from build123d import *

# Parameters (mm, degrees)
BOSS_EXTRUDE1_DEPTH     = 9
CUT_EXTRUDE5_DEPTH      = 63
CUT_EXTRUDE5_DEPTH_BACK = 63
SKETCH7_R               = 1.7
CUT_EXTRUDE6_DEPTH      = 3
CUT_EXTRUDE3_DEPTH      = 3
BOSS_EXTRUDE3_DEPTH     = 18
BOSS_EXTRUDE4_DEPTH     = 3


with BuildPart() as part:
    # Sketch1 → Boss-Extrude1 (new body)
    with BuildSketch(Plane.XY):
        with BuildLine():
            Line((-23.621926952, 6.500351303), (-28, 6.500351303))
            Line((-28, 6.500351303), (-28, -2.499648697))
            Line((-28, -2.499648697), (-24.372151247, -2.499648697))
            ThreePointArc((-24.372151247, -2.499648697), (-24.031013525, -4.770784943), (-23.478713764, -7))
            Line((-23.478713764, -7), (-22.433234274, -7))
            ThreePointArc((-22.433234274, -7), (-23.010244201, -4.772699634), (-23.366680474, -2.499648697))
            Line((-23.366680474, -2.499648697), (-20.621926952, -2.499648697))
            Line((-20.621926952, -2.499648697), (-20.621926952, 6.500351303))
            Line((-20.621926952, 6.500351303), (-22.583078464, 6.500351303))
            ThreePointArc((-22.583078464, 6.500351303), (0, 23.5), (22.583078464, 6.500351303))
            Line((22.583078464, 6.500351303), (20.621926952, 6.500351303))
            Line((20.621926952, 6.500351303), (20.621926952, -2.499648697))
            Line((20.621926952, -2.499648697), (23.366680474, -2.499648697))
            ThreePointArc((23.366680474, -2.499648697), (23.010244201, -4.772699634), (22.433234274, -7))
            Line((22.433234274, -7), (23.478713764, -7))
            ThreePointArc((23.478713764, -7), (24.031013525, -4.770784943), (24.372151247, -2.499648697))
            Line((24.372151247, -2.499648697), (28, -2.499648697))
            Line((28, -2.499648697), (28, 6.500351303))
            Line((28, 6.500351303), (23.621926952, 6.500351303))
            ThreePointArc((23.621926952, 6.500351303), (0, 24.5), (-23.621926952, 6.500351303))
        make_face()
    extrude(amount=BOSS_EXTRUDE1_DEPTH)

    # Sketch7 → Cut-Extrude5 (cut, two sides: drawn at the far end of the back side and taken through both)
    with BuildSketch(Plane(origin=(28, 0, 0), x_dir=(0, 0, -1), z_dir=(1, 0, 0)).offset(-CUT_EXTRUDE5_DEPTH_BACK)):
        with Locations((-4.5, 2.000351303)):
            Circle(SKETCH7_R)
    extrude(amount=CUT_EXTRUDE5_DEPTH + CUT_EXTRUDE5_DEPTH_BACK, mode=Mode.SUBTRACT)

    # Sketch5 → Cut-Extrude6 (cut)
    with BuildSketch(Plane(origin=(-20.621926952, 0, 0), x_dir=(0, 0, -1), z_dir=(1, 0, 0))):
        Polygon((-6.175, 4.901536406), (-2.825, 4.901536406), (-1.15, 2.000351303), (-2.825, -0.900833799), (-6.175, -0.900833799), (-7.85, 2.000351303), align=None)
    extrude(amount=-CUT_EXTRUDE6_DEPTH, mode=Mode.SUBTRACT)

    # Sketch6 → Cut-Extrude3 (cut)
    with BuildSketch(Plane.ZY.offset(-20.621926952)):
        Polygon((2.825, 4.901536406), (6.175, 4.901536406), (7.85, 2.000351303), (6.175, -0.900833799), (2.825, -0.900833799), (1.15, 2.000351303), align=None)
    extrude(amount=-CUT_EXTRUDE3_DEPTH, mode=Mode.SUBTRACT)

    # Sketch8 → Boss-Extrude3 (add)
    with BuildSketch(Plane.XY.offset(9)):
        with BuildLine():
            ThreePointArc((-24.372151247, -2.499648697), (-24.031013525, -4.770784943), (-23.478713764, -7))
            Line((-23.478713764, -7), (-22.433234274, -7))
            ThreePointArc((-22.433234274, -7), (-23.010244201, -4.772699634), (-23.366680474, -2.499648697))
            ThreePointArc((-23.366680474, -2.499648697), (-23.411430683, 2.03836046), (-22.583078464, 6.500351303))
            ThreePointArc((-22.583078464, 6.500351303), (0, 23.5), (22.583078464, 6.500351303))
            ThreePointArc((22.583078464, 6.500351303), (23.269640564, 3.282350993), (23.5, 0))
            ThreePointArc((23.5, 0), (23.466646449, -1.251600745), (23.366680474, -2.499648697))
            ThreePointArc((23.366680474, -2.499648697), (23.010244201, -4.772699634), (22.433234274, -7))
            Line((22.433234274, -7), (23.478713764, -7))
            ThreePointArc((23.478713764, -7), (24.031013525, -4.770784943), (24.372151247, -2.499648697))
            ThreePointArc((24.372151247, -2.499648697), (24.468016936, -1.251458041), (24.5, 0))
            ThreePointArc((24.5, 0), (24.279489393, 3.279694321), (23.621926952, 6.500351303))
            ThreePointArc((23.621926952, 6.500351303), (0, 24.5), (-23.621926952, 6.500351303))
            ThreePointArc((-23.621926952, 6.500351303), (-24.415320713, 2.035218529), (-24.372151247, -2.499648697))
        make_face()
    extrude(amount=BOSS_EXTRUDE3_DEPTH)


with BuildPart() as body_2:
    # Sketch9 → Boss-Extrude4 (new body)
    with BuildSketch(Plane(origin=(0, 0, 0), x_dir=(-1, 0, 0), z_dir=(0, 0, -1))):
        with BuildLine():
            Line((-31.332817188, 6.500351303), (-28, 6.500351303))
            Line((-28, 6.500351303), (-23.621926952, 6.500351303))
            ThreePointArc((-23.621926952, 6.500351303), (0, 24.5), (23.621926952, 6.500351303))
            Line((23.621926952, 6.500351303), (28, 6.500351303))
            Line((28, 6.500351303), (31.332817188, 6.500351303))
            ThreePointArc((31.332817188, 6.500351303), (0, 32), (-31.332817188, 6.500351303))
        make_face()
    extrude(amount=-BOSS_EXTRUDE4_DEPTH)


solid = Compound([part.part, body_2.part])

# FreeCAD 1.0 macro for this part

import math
import FreeCAD as App
import Part
import Sketcher
Q = App.Units.Quantity

doc = App.newDocument("Part")
params = doc.addObject("Spreadsheet::Sheet", "Params")
for row, (alias, value) in enumerate([
    ("sketch1_radius", "24.5 mm"),
    ("sketch1_radius2", "23.5 mm"),
    ("sketch1_height", "9 mm"),
    ("pad1_length", "9 mm"),
    ("sketch2_diameter", "3.4 mm"),
    ("sketch3_height", "3.35 mm"),
    ("pocket2_length", "3 mm"),
    ("sketch4_height", "3.35 mm"),
    ("pocket3_length", "3 mm"),
    ("sketch5_radius", "24.5 mm"),
    ("sketch5_radius2", "23.5 mm"),
    ("pad2_length", "18 mm"),
    ("sketch6_radius", "32 mm"),
    ("sketch6_radius2", "24.5 mm"),
    ("pad3_length", "3 mm"),
], start=1):
    params.set(f"A{row}", alias)
    params.set(f"B{row}", "=" + value)
    params.setAlias(f"B{row}", alias)

body = doc.addObject("PartDesign::Body", "Body")

# Sketch on XY plane
sketch1 = body.newObject("Sketcher::SketchObject", "Sketch")
sketch1.AttachmentSupport = (doc.getObject("XY_Plane"), [""])
sketch1.MapMode = "FlatFace"
sketch1.addGeometry([
    Part.LineSegment(App.Vector(-23.621927, 6.500351, 0), App.Vector(-28, 6.500351, 0)),  # 0
    Part.LineSegment(App.Vector(-28, 6.500351, 0), App.Vector(-28, -2.499649, 0)),  # 1
    Part.LineSegment(App.Vector(-28, -2.499649, 0), App.Vector(-24.372151, -2.499649, 0)),  # 2
    Part.ArcOfCircle(Part.Circle(App.Vector(0, 0, 0), App.Vector(0, 0, 1), 24.5), math.radians(-174.144124), math.radians(-163.39845)),  # 3
    Part.LineSegment(App.Vector(-23.478714, -7, 0), App.Vector(-22.433234, -7, 0)),  # 4
    Part.ArcOfCircle(Part.Circle(App.Vector(0, 0, 0), App.Vector(0, 0, 1), 23.5), math.radians(-173.89401), math.radians(-162.670144)),  # 5
    Part.LineSegment(App.Vector(-23.36668, -2.499649, 0), App.Vector(-20.621927, -2.499649, 0)),  # 6
    Part.LineSegment(App.Vector(-20.621927, -2.499649, 0), App.Vector(-20.621927, 6.500351, 0)),  # 7
    Part.LineSegment(App.Vector(-20.621927, 6.500351, 0), App.Vector(-22.583078, 6.500351, 0)),  # 8
    Part.ArcOfCircle(Part.Circle(App.Vector(0, 0, 0), App.Vector(0, 0, 1), 23.5), math.radians(16.058024), math.radians(163.941976)),  # 9
    Part.LineSegment(App.Vector(22.583078, 6.500351, 0), App.Vector(20.621927, 6.500351, 0)),  # 10
    Part.LineSegment(App.Vector(20.621927, 6.500351, 0), App.Vector(20.621927, -2.499649, 0)),  # 11
    Part.LineSegment(App.Vector(20.621927, -2.499649, 0), App.Vector(23.36668, -2.499649, 0)),  # 12
    Part.ArcOfCircle(Part.Circle(App.Vector(0, 0, 0), App.Vector(0, 0, 1), 23.5), math.radians(-17.329856), math.radians(-6.10599)),  # 13
    Part.LineSegment(App.Vector(22.433234, -7, 0), App.Vector(23.478714, -7, 0)),  # 14
    Part.ArcOfCircle(Part.Circle(App.Vector(0, 0, 0), App.Vector(0, 0, 1), 24.5), math.radians(-16.60155), math.radians(-5.855876)),  # 15
    Part.LineSegment(App.Vector(24.372151, -2.499649, 0), App.Vector(28, -2.499649, 0)),  # 16
    Part.LineSegment(App.Vector(28, -2.499649, 0), App.Vector(28, 6.500351, 0)),  # 17
    Part.LineSegment(App.Vector(28, 6.500351, 0), App.Vector(23.621927, 6.500351, 0)),  # 18
    Part.ArcOfCircle(Part.Circle(App.Vector(0, 0, 0), App.Vector(0, 0, 1), 24.5), math.radians(15.385996), math.radians(164.614004)),  # 19
], False)
sketch1.addConstraint([
    Sketcher.Constraint("Coincident", 0, 2, 1, 1),
    Sketcher.Constraint("Coincident", 1, 2, 2, 1),
    Sketcher.Constraint("Coincident", 2, 2, 3, 1),
    Sketcher.Constraint("Coincident", 3, 2, 4, 1),
    Sketcher.Constraint("Coincident", 4, 2, 5, 2),
    Sketcher.Constraint("Coincident", 5, 1, 6, 1),
    Sketcher.Constraint("Coincident", 6, 2, 7, 1),
    Sketcher.Constraint("Coincident", 7, 2, 8, 1),
    Sketcher.Constraint("Coincident", 8, 2, 9, 2),
    Sketcher.Constraint("Coincident", 9, 1, 10, 1),
    Sketcher.Constraint("Coincident", 10, 2, 11, 1),
    Sketcher.Constraint("Coincident", 11, 2, 12, 1),
    Sketcher.Constraint("Coincident", 12, 2, 13, 2),
    Sketcher.Constraint("Coincident", 13, 1, 14, 1),
    Sketcher.Constraint("Coincident", 14, 2, 15, 1),
    Sketcher.Constraint("Coincident", 15, 2, 16, 1),
    Sketcher.Constraint("Coincident", 16, 2, 17, 1),
    Sketcher.Constraint("Coincident", 17, 2, 18, 1),
    Sketcher.Constraint("Coincident", 18, 2, 19, 1),
    Sketcher.Constraint("Coincident", 19, 2, 0, 1),
    Sketcher.Constraint("Horizontal", 0),
    Sketcher.Constraint("Vertical", 1),
    Sketcher.Constraint("Horizontal", 2),
    Sketcher.Constraint("Horizontal", 4),
    Sketcher.Constraint("Horizontal", 6),
    Sketcher.Constraint("Vertical", 7),
    Sketcher.Constraint("Horizontal", 8),
    Sketcher.Constraint("Horizontal", 10),
    Sketcher.Constraint("Vertical", 11),
    Sketcher.Constraint("Horizontal", 12),
    Sketcher.Constraint("Horizontal", 14),
    Sketcher.Constraint("Horizontal", 16),
    Sketcher.Constraint("Vertical", 17),
    Sketcher.Constraint("Horizontal", 18),
    Sketcher.Constraint("Coincident", 3, 3, -1, 1),
    Sketcher.Constraint("Coincident", 5, 3, -1, 1),
    Sketcher.Constraint("Coincident", 9, 3, -1, 1),
    Sketcher.Constraint("Coincident", 13, 3, -1, 1),
    Sketcher.Constraint("Coincident", 15, 3, -1, 1),
    Sketcher.Constraint("Coincident", 19, 3, -1, 1),
    Sketcher.Constraint("Equal", 5, 9),
    Sketcher.Constraint("Equal", 9, 13),
    Sketcher.Constraint("Equal", 3, 15),
    Sketcher.Constraint("Equal", 15, 19),
    Sketcher.Constraint("Symmetric", 7, 2, 10, 2, -2),
    Sketcher.Constraint("Symmetric", 1, 2, 16, 2, -2),
    Sketcher.Constraint("Horizontal", 2, 2, 5, 1),
    Sketcher.Constraint("Horizontal", 0, 2, 7, 2),
    Sketcher.Constraint("Horizontal", 6, 2, 11, 2),
    Sketcher.Constraint("Horizontal", 4, 2, 13, 1),
    Sketcher.Constraint("Horizontal", 10, 2, 17, 2),
    Sketcher.Constraint("Radius", 3, 24.5),
    Sketcher.Constraint("Radius", 5, 23.5),
    Sketcher.Constraint("DistanceY", 1, 2, 1, 1, 9.0),
    Sketcher.Constraint("DistanceX", 0, 2, -1, 1, 28.0),
    Sketcher.Constraint("DistanceY", 3, 2, -1, 1, 7.0),
    Sketcher.Constraint("DistanceX", 10, 2, 18, 2, 3.0),
    Sketcher.Constraint("DistanceX", 2, 1, 2, 2, 3.627849),
])
sketch1.setExpression("Constraints[51]", "Params.sketch1_radius")
sketch1.setExpression("Constraints[52]", "Params.sketch1_radius2")
sketch1.setExpression("Constraints[53]", "Params.sketch1_height")
pad1 = body.newObject("PartDesign::Pad", "Pad")
pad1.Profile = sketch1
pad1.setExpression("Length", "Params.pad1_length")

# Sketch on YZ plane
sketch2 = body.newObject("Sketcher::SketchObject", "Sketch001")
sketch2.AttachmentSupport = (doc.getObject("YZ_Plane"), [""])
sketch2.MapMode = "FlatFace"
sketch2.AttachmentOffset = App.Placement(App.Vector(0, 0, 28), App.Rotation())
sketch2.addGeometry(Part.Circle(App.Vector(2.000351, 4.5, 0), App.Vector(0, 0, 1), 1.7), False)
sketch2.addConstraint([
    Sketcher.Constraint("Diameter", 0, 3.4),
    Sketcher.Constraint("DistanceY", -1, 1, 0, 3, 4.5),
    Sketcher.Constraint("DistanceX", -1, 1, 0, 3, 2.000351),
])
sketch2.setExpression("Constraints[0]", "Params.sketch2_diameter")
pocket1 = body.newObject("PartDesign::Pocket", "Pocket")
pocket1.Profile = sketch2
pocket1.Type = "ThroughAll"
pocket1.Midplane = True

# Sketch on YZ plane
sketch3 = body.newObject("Sketcher::SketchObject", "Sketch002")
sketch3.AttachmentSupport = (doc.getObject("YZ_Plane"), [""])
sketch3.MapMode = "FlatFace"
sketch3.AttachmentOffset = App.Placement(App.Vector(0, 0, -20.621927), App.Rotation())
sketch3.addGeometry([
    Part.LineSegment(App.Vector(4.901536, 2.825, 0), App.Vector(4.901536, 6.175, 0)),  # 0
    Part.LineSegment(App.Vector(4.901536, 6.175, 0), App.Vector(2.000351, 7.85, 0)),  # 1
    Part.LineSegment(App.Vector(2.000351, 7.85, 0), App.Vector(-0.900834, 6.175, 0)),  # 2
    Part.LineSegment(App.Vector(-0.900834, 6.175, 0), App.Vector(-0.900834, 2.825, 0)),  # 3
    Part.LineSegment(App.Vector(-0.900834, 2.825, 0), App.Vector(2.000351, 1.15, 0)),  # 4
    Part.LineSegment(App.Vector(2.000351, 1.15, 0), App.Vector(4.901536, 2.825, 0)),  # 5
], False)
sketch3.addConstraint([
    Sketcher.Constraint("Coincident", 0, 2, 1, 1),
    Sketcher.Constraint("Coincident", 1, 2, 2, 1),
    Sketcher.Constraint("Coincident", 2, 2, 3, 1),
    Sketcher.Constraint("Coincident", 3, 2, 4, 1),
    Sketcher.Constraint("Coincident", 4, 2, 5, 1),
    Sketcher.Constraint("Coincident", 5, 2, 0, 1),
    Sketcher.Constraint("Vertical", 0),
    Sketcher.Constraint("Vertical", 3),
    Sketcher.Constraint("Parallel", 1, 4),
    Sketcher.Constraint("Parallel", 2, 5),
    Sketcher.Constraint("Horizontal", 0, 2, 2, 2),
    Sketcher.Constraint("Horizontal", 3, 2, 5, 2),
    Sketcher.Constraint("Vertical", 1, 2, 4, 2),
    Sketcher.Constraint("Angle", 1, Q("150 deg")),
    Sketcher.Constraint("DistanceY", 0, 1, 0, 2, 3.35),
    Sketcher.Constraint("DistanceY", 4, 2, 1, 2, 6.7),
    Sketcher.Constraint("DistanceY", -1, 1, 1, 2, 7.85),
    Sketcher.Constraint("DistanceX", -1, 1, 1, 2, 2.000351),
])
sketch3.setExpression("Constraints[14]", "Params.sketch3_height")
pocket2 = body.newObject("PartDesign::Pocket", "Pocket001")
pocket2.Profile = sketch3
pocket2.setExpression("Length", "Params.pocket2_length")

# Sketch on YZ plane
sketch4 = body.newObject("Sketcher::SketchObject", "Sketch003")
sketch4.AttachmentSupport = (doc.getObject("YZ_Plane"), [""])
sketch4.MapMode = "FlatFace"
sketch4.AttachmentOffset = App.Placement(App.Vector(0, 0, 20.621927), App.Rotation())
sketch4.addGeometry([
    Part.LineSegment(App.Vector(4.901536, 6.175, 0), App.Vector(4.901536, 2.825, 0)),  # 0
    Part.LineSegment(App.Vector(4.901536, 2.825, 0), App.Vector(2.000351, 1.15, 0)),  # 1
    Part.LineSegment(App.Vector(2.000351, 1.15, 0), App.Vector(-0.900834, 2.825, 0)),  # 2
    Part.LineSegment(App.Vector(-0.900834, 2.825, 0), App.Vector(-0.900834, 6.175, 0)),  # 3
    Part.LineSegment(App.Vector(-0.900834, 6.175, 0), App.Vector(2.000351, 7.85, 0)),  # 4
    Part.LineSegment(App.Vector(2.000351, 7.85, 0), App.Vector(4.901536, 6.175, 0)),  # 5
], False)
sketch4.addConstraint([
    Sketcher.Constraint("Coincident", 0, 2, 1, 1),
    Sketcher.Constraint("Coincident", 1, 2, 2, 1),
    Sketcher.Constraint("Coincident", 2, 2, 3, 1),
    Sketcher.Constraint("Coincident", 3, 2, 4, 1),
    Sketcher.Constraint("Coincident", 4, 2, 5, 1),
    Sketcher.Constraint("Coincident", 5, 2, 0, 1),
    Sketcher.Constraint("Vertical", 0),
    Sketcher.Constraint("Vertical", 3),
    Sketcher.Constraint("Parallel", 1, 4),
    Sketcher.Constraint("Parallel", 2, 5),
    Sketcher.Constraint("Horizontal", 0, 2, 2, 2),
    Sketcher.Constraint("Horizontal", 3, 2, 5, 2),
    Sketcher.Constraint("Vertical", 1, 2, 4, 2),
    Sketcher.Constraint("Angle", 1, Q("-150 deg")),
    Sketcher.Constraint("DistanceY", 0, 2, 0, 1, 3.35),
    Sketcher.Constraint("DistanceY", 1, 2, 4, 2, 6.7),
    Sketcher.Constraint("DistanceY", -1, 1, 1, 2, 1.15),
    Sketcher.Constraint("DistanceX", -1, 1, 1, 2, 2.000351),
])
sketch4.setExpression("Constraints[14]", "Params.sketch4_height")
pocket3 = body.newObject("PartDesign::Pocket", "Pocket002")
pocket3.Profile = sketch4
pocket3.setExpression("Length", "Params.pocket3_length")
pocket3.Reversed = True

# Sketch on XY plane
sketch5 = body.newObject("Sketcher::SketchObject", "Sketch004")
sketch5.AttachmentSupport = (doc.getObject("XY_Plane"), [""])
sketch5.MapMode = "FlatFace"
sketch5.AttachmentOffset = App.Placement(App.Vector(0, 0, 9), App.Rotation())
sketch5.addGeometry([
    Part.ArcOfCircle(Part.Circle(App.Vector(0, 0, 0), App.Vector(0, 0, 1), 24.5), math.radians(-174.144124), math.radians(-163.39845)),  # 0
    Part.LineSegment(App.Vector(-23.478714, -7, 0), App.Vector(-22.433234, -7, 0)),  # 1
    Part.ArcOfCircle(Part.Circle(App.Vector(0, 0, 0), App.Vector(0, 0, 1), 23.5), math.radians(-173.89401), math.radians(-162.670144)),  # 2
    Part.ArcOfCircle(Part.Circle(App.Vector(0, 0, 0), App.Vector(0, 0, 1), 23.5), math.radians(163.941976), math.radians(186.10599)),  # 3
    Part.ArcOfCircle(Part.Circle(App.Vector(0, 0, 0), App.Vector(0, 0, 1), 23.5), math.radians(16.058024), math.radians(163.941976)),  # 4
    Part.ArcOfCircle(Part.Circle(App.Vector(0, 0, 0), App.Vector(0, 0, 1), 23.5), math.radians(0), math.radians(16.058024)),  # 5
    Part.ArcOfCircle(Part.Circle(App.Vector(0, 0, 0), App.Vector(0, 0, 1), 23.5), math.radians(-6.10599), math.radians(0)),  # 6
    Part.ArcOfCircle(Part.Circle(App.Vector(0, 0, 0), App.Vector(0, 0, 1), 23.5), math.radians(-17.329856), math.radians(-6.10599)),  # 7
    Part.LineSegment(App.Vector(22.433234, -7, 0), App.Vector(23.478714, -7, 0)),  # 8
    Part.ArcOfCircle(Part.Circle(App.Vector(0, 0, 0), App.Vector(0, 0, 1), 24.5), math.radians(-16.60155), math.radians(-5.855876)),  # 9
    Part.ArcOfCircle(Part.Circle(App.Vector(0, 0, 0), App.Vector(0, 0, 1), 24.5), math.radians(-5.855876), math.radians(0)),  # 10
    Part.ArcOfCircle(Part.Circle(App.Vector(0, 0, 0), App.Vector(0, 0, 1), 24.5), math.radians(0), math.radians(15.385996)),  # 11
    Part.ArcOfCircle(Part.Circle(App.Vector(0, 0, 0), App.Vector(0, 0, 1), 24.5), math.radians(15.385996), math.radians(164.614004)),  # 12
    Part.ArcOfCircle(Part.Circle(App.Vector(0, 0, 0), App.Vector(0, 0, 1), 24.5), math.radians(164.614004), math.radians(185.855876)),  # 13
], False)
sketch5.addConstraint([
    Sketcher.Constraint("Coincident", 0, 2, 1, 1),
    Sketcher.Constraint("Coincident", 1, 2, 2, 2),
    Sketcher.Constraint("Tangent", 2, 1, 3, 2),
    Sketcher.Constraint("Tangent", 3, 1, 4, 2),
    Sketcher.Constraint("Tangent", 4, 1, 5, 2),
    Sketcher.Constraint("Tangent", 5, 1, 6, 2),
    Sketcher.Constraint("Tangent", 6, 1, 7, 2),
    Sketcher.Constraint("Coincident", 7, 1, 8, 1),
    Sketcher.Constraint("Coincident", 8, 2, 9, 1),
    Sketcher.Constraint("Tangent", 9, 2, 10, 1),
    Sketcher.Constraint("Tangent", 10, 2, 11, 1),
    Sketcher.Constraint("Tangent", 11, 2, 12, 1),
    Sketcher.Constraint("Tangent", 12, 2, 13, 1),
    Sketcher.Constraint("Tangent", 13, 2, 0, 1),
    Sketcher.Constraint("Horizontal", 1),
    Sketcher.Constraint("Horizontal", 8),
    Sketcher.Constraint("Coincident", 0, 3, -1, 1),
    Sketcher.Constraint("Coincident", 2, 3, -1, 1),
    Sketcher.Constraint("Coincident", 4, 3, -1, 1),
    Sketcher.Constraint("Coincident", 6, 3, -1, 1),
    Sketcher.Constraint("Coincident", 9, 3, -1, 1),
    Sketcher.Constraint("Coincident", 11, 3, -1, 1),
    Sketcher.Constraint("Equal", 6, 7),
    Sketcher.Constraint("Equal", 0, 9),
    Sketcher.Constraint("PointOnObject", 5, 1, -1),
    Sketcher.Constraint("PointOnObject", 10, 2, -1),
    Sketcher.Constraint("Horizontal", 3, 1, 4, 1),
    Sketcher.Constraint("Horizontal", 2, 1, 6, 1),
    Sketcher.Constraint("Horizontal", 1, 2, 7, 1),
    Sketcher.Constraint("Horizontal", 6, 1, 9, 2),
    Sketcher.Constraint("Horizontal", 4, 1, 11, 2),
    Sketcher.Constraint("Horizontal", 11, 2, 12, 2),
    Sketcher.Constraint("Horizontal", 9, 2, 13, 2),
    Sketcher.Constraint("Radius", 0, 24.5),
    Sketcher.Constraint("Radius", 2, 23.5),
    Sketcher.Constraint("DistanceY", 0, 2, -1, 1, 7.0),
    Sketcher.Constraint("DistanceY", 2, 1, 3, 1, 9.0),
    Sketcher.Constraint("DistanceX", 2, 1, -1, 1, 23.36668),
])
sketch5.setExpression("Constraints[33]", "Params.sketch5_radius")
sketch5.setExpression("Constraints[34]", "Params.sketch5_radius2")
pad2 = body.newObject("PartDesign::Pad", "Pad001")
pad2.Profile = sketch5
pad2.setExpression("Length", "Params.pad2_length")
body2 = doc.addObject("PartDesign::Body", "Body001")

# Sketch on XY plane
sketch6 = body2.newObject("Sketcher::SketchObject", "Sketch005")
sketch6.AttachmentSupport = (doc.getObject("XY_Plane001"), [""])
sketch6.MapMode = "FlatFace"
sketch6.addGeometry([
    Part.LineSegment(App.Vector(31.332817, 6.500351, 0), App.Vector(23.621927, 6.500351, 0)),
    Part.ArcOfCircle(Part.Circle(App.Vector(0, 0, 0), App.Vector(0, 0, 1), 24.5), math.radians(15.385996), math.radians(164.614004)),
    Part.LineSegment(App.Vector(-23.621927, 6.500351, 0), App.Vector(-31.332817, 6.500351, 0)),
    Part.ArcOfCircle(Part.Circle(App.Vector(0, 0, 0), App.Vector(0, 0, 1), 32), math.radians(11.720403), math.radians(168.279597)),
], False)
sketch6.addConstraint([
    Sketcher.Constraint("Coincident", 0, 2, 1, 1),
    Sketcher.Constraint("Coincident", 1, 2, 2, 1),
    Sketcher.Constraint("Coincident", 2, 2, 3, 2),
    Sketcher.Constraint("Coincident", 3, 1, 0, 1),
    Sketcher.Constraint("Horizontal", 0),
    Sketcher.Constraint("Horizontal", 2),
    Sketcher.Constraint("Coincident", 1, 3, -1, 1),
    Sketcher.Constraint("Coincident", 3, 3, -1, 1),
    Sketcher.Constraint("Horizontal", 0, 2, 1, 2),
    Sketcher.Constraint("Radius", 3, 32.0),
    Sketcher.Constraint("Radius", 1, 24.5),
    Sketcher.Constraint("DistanceX", 0, 2, 0, 1, 7.71089),
])
sketch6.setExpression("Constraints[9]", "Params.sketch6_radius")
sketch6.setExpression("Constraints[10]", "Params.sketch6_radius2")
pad3 = body2.newObject("PartDesign::Pad", "Pad002")
pad3.Profile = sketch6
pad3.setExpression("Length", "Params.pad3_length")

doc.recompute()
